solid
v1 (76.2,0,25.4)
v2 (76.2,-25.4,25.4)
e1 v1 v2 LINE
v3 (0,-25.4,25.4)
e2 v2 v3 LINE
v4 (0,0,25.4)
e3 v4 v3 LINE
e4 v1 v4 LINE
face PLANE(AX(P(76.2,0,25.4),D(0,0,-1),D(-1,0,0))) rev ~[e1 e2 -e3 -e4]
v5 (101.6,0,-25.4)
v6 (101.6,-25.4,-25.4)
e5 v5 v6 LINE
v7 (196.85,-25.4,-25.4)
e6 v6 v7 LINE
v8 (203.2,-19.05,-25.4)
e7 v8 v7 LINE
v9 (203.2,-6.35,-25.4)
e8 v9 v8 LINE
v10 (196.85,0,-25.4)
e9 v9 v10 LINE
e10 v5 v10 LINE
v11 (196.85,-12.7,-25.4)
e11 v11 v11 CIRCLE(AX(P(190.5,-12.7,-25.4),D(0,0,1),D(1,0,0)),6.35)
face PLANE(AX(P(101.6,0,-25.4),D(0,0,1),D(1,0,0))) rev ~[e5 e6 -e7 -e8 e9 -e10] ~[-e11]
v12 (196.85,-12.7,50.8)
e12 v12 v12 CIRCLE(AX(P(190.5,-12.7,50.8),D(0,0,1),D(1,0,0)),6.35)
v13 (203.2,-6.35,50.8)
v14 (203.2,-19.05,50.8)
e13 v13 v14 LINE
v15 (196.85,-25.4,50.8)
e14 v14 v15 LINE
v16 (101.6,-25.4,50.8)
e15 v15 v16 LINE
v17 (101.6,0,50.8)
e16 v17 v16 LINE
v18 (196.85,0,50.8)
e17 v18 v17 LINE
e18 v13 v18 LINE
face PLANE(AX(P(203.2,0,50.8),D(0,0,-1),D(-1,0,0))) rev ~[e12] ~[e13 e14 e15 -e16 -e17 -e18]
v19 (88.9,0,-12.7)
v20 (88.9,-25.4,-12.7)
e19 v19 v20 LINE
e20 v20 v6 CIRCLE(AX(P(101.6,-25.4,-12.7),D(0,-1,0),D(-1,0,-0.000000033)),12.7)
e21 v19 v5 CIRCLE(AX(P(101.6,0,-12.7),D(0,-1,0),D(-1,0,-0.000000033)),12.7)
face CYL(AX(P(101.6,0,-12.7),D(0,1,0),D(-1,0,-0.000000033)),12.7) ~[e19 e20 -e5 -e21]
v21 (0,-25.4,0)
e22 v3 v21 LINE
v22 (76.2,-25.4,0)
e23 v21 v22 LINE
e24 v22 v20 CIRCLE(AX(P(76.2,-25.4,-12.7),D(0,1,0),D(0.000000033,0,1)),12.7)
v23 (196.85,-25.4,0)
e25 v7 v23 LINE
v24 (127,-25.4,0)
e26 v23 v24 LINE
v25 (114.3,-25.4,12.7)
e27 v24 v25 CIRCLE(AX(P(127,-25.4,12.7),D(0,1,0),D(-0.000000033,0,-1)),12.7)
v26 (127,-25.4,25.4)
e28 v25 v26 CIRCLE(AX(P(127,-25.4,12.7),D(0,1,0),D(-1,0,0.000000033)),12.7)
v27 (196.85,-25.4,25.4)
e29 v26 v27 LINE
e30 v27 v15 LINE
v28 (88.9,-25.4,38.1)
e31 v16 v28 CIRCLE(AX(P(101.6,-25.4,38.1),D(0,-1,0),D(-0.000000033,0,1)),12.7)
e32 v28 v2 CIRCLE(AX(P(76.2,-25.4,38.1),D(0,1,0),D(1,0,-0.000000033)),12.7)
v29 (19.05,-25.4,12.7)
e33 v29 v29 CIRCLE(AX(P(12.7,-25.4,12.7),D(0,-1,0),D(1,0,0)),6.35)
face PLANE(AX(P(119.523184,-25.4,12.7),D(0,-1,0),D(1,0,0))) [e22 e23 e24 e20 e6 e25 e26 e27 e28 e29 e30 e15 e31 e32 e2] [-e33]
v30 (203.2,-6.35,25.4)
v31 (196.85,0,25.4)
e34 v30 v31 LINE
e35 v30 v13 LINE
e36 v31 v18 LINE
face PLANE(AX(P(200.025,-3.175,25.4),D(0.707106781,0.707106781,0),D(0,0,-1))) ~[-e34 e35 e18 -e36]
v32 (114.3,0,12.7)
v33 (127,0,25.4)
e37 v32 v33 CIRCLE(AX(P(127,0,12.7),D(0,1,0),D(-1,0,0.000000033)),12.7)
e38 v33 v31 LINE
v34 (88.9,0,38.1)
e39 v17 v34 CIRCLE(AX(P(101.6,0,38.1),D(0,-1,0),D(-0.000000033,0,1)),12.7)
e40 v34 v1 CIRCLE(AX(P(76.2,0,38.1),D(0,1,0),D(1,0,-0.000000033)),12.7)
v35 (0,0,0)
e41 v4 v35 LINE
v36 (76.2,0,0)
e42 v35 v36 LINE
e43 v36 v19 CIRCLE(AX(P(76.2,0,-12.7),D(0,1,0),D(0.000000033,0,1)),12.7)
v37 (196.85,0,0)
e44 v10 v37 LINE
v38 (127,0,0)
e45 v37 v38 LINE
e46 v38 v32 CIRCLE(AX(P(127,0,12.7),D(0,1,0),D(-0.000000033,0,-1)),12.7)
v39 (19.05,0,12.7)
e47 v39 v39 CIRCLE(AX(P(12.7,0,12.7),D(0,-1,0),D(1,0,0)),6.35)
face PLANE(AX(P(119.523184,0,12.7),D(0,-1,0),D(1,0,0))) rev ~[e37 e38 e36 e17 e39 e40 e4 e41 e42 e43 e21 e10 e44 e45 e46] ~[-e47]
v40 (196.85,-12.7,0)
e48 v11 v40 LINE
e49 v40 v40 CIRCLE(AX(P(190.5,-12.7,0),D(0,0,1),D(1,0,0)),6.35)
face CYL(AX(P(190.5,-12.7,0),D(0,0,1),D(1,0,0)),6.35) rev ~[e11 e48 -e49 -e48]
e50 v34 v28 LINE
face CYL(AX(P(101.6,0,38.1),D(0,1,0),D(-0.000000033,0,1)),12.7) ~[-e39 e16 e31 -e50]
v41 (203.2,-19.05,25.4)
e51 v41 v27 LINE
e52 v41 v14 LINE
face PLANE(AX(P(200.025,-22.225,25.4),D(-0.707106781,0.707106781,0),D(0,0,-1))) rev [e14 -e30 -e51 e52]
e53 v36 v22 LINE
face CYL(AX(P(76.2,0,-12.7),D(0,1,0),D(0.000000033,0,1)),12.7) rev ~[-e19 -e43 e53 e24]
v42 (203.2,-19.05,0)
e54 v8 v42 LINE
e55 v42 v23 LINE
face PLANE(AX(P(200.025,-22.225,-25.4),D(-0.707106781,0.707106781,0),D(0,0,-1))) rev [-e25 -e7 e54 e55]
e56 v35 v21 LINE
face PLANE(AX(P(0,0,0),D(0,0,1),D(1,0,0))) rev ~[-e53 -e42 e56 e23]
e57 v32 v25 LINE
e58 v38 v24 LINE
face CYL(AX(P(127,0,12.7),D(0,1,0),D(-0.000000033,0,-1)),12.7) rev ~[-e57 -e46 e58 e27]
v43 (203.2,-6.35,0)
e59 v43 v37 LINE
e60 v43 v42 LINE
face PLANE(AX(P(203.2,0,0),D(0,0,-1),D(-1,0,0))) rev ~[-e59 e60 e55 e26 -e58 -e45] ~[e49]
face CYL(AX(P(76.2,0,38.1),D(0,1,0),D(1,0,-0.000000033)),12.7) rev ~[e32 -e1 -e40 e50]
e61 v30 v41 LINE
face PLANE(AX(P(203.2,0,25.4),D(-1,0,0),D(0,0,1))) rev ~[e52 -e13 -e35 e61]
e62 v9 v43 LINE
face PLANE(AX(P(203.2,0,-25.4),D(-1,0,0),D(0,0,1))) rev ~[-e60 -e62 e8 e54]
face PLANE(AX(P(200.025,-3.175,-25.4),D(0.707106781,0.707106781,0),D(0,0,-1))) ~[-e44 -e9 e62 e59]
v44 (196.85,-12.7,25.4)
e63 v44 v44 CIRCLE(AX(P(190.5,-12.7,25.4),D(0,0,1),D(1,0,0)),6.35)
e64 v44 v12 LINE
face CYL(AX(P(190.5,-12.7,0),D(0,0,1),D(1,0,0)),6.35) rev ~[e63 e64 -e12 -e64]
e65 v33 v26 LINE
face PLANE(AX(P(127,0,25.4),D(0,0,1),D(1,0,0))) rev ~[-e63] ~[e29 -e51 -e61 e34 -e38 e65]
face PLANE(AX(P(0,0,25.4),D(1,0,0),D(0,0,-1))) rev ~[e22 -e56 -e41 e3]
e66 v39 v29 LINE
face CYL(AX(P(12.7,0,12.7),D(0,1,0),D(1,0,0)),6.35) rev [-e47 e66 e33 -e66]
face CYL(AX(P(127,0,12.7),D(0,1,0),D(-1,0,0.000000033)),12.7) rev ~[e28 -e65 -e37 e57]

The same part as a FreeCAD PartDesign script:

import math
import FreeCAD as App
import Part
import Sketcher
from FreeCAD import Vector
Q = App.Units.Quantity


def edges_at(feature, points):
    """Names of the edges that pass closest to the given points."""
    edges = feature.Shape.Edges
    near = lambda p: min(range(len(edges)), key=lambda i: edges[i].distToShape(Part.Vertex(*p))[0])
    return sorted({f"Edge{near(p) + 1}" for p in points})

doc = App.newDocument("Part")
body = doc.addObject("PartDesign::Body", "Body")

# Sketch on XZ plane
sketch1 = doc.addObject("Sketcher::SketchObject", "Sketch")
body.addObject(sketch1)
sketch1.AttachmentSupport = (doc.XZ_Plane, [""])
sketch1.MapMode = "FlatFace"
sketch1.addGeometry(Part.LineSegment(Vector(0, 25, 0), Vector(0, 0, 0)), False)
sketch1.addGeometry(Part.LineSegment(Vector(0, 0, 0), Vector(76, 0, 0)), False)
sketch1.addGeometry(Part.ArcOfCircle(Part.Circle(Vector(76, -13, 0), Vector(0, 0, 1), 13), math.radians(0), math.radians(90)), False)
sketch1.addGeometry(Part.ArcOfCircle(Part.Circle(Vector(102, -13, 0), Vector(0, 0, 1), 13), math.radians(-180), math.radians(-90)), False)
sketch1.addGeometry(Part.LineSegment(Vector(102, -25, 0), Vector(203, -25, 0)), False)
sketch1.addGeometry(Part.LineSegment(Vector(203, -25, 0), Vector(203, 0, 0)), False)
sketch1.addGeometry(Part.LineSegment(Vector(203, 0, 0), Vector(127, 0, 0)), False)
sketch1.addGeometry(Part.ArcOfCircle(Part.Circle(Vector(127, 13, 0), Vector(0, 0, 1), 13), math.radians(-180), math.radians(-90)), False)
sketch1.addGeometry(Part.ArcOfCircle(Part.Circle(Vector(127, 13, 0), Vector(0, 0, 1), 13), math.radians(90), math.radians(180)), False)
sketch1.addGeometry(Part.LineSegment(Vector(127, 25, 0), Vector(203, 25, 0)), False)
sketch1.addGeometry(Part.LineSegment(Vector(203, 25, 0), Vector(203, 51, 0)), False)
sketch1.addGeometry(Part.LineSegment(Vector(203, 51, 0), Vector(102, 51, 0)), False)
sketch1.addGeometry(Part.ArcOfCircle(Part.Circle(Vector(102, 38, 0), Vector(0, 0, 1), 13), math.radians(90), math.radians(180)), False)
sketch1.addGeometry(Part.ArcOfCircle(Part.Circle(Vector(76, 38, 0), Vector(0, 0, 1), 13), math.radians(-90), math.radians(0)), False)
sketch1.addGeometry(Part.LineSegment(Vector(76, 25, 0), Vector(0, 25, 0)), False)
sketch1.addGeometry(Part.Circle(Vector(13, 13, 0), Vector(0, 0, 1), 6), False)
sketch1.addConstraint(Sketcher.Constraint("Coincident", 0, 2, 1, 1))
sketch1.addConstraint(Sketcher.Constraint("Tangent", 1, 2, 2, 2))
sketch1.addConstraint(Sketcher.Constraint("Tangent", 2, 1, 3, 1))
sketch1.addConstraint(Sketcher.Constraint("Tangent", 3, 2, 4, 1))
sketch1.addConstraint(Sketcher.Constraint("Coincident", 4, 2, 5, 1))
sketch1.addConstraint(Sketcher.Constraint("Coincident", 5, 2, 6, 1))
sketch1.addConstraint(Sketcher.Constraint("Tangent", 6, 2, 7, 2))
sketch1.addConstraint(Sketcher.Constraint("Tangent", 7, 1, 8, 2))
sketch1.addConstraint(Sketcher.Constraint("Tangent", 8, 1, 9, 1))
sketch1.addConstraint(Sketcher.Constraint("Coincident", 9, 2, 10, 1))
sketch1.addConstraint(Sketcher.Constraint("Coincident", 10, 2, 11, 1))
sketch1.addConstraint(Sketcher.Constraint("Tangent", 11, 2, 12, 1))
sketch1.addConstraint(Sketcher.Constraint("Tangent", 12, 2, 13, 2))
sketch1.addConstraint(Sketcher.Constraint("Tangent", 13, 1, 14, 1))
sketch1.addConstraint(Sketcher.Constraint("Coincident", 14, 2, 0, 1))
sketch1.addConstraint(Sketcher.Constraint("Vertical", 0))
sketch1.addConstraint(Sketcher.Constraint("Horizontal", 1))
sketch1.addConstraint(Sketcher.Constraint("Horizontal", 4))
sketch1.addConstraint(Sketcher.Constraint("Vertical", 5))
sketch1.addConstraint(Sketcher.Constraint("Horizontal", 6))
sketch1.addConstraint(Sketcher.Constraint("Horizontal", 9))
sketch1.addConstraint(Sketcher.Constraint("Vertical", 10))
sketch1.addConstraint(Sketcher.Constraint("Horizontal", 11))
sketch1.addConstraint(Sketcher.Constraint("Horizontal", 14))
sketch1.addConstraint(Sketcher.Constraint("Coincident", 0, 2, -1, 1))
sketch1.addConstraint(Sketcher.Constraint("Equal", 2, 3))
sketch1.addConstraint(Sketcher.Constraint("Equal", 3, 7))
sketch1.addConstraint(Sketcher.Constraint("Equal", 7, 8))
sketch1.addConstraint(Sketcher.Constraint("Equal", 8, 12))
sketch1.addConstraint(Sketcher.Constraint("Equal", 12, 13))
sketch1.addConstraint(Sketcher.Constraint("Symmetric", 4, 2, 9, 2, -1))
sketch1.addConstraint(Sketcher.Constraint("PointOnObject", 5, 2, -1))
sketch1.addConstraint(Sketcher.Constraint("Horizontal", 12, 3, 13, 3))
sketch1.addConstraint(Sketcher.Constraint("Horizontal", 8, 3, 15, 3))
sketch1.addConstraint(Sketcher.Constraint("Horizontal", 15, 3, 7, 1))
sketch1.addConstraint(Sketcher.Constraint("Horizontal", 9, 2, 13, 1))
sketch1.addConstraint(Sketcher.Constraint("Vertical", 3, 3, 12, 3))
sketch1.addConstraint(Sketcher.Constraint("Equal", 1, 6))
sketch1.addConstraint(Sketcher.Constraint("Diameter", 15, Q("0.5 in")))
sketch1.addConstraint(Sketcher.Constraint("Radius", 2, Q("0.5 in")))
sketch1.addConstraint(Sketcher.Constraint("DistanceX", 1, 1, 1, 2, Q("3 in")))
sketch1.addConstraint(Sketcher.Constraint("DistanceX", 4, 1, 4, 2, Q("4 in")))
sketch1.addConstraint(Sketcher.Constraint("DistanceX", -1, 1, 15, 3, Q("0.5 in")))
pad1 = doc.addObject("PartDesign::Pad", "Pad")
body.addObject(pad1)
pad1.Profile = sketch1
pad1.Length = Q("1 in")
doc.recompute()

chamfer = doc.addObject("PartDesign::Chamfer", "Chamfer")
body.addObject(chamfer)
chamfer.Base = (pad1, edges_at(pad1, [
    (203.2, -25.4, 38.1),
    (203.2, -25.4, -12.7),
    (203.2, 0, -12.7),
    (203.2, 0, 38.1),
]))
chamfer.ChamferType = "Two distances"
chamfer.Size = Q("0.25 in")
chamfer.Size2 = Q("0.25 in")

# Sketch on XY plane
sketch2 = doc.addObject("Sketcher::SketchObject", "Sketch001")
body.addObject(sketch2)
sketch2.AttachmentSupport = (doc.XY_Plane, [""])
sketch2.MapMode = "FlatFace"
sketch2.addGeometry(Part.Circle(Vector(190, -13, 0), Vector(0, 0, 1), 6), False)
sketch2.addConstraint(Sketcher.Constraint("Diameter", 0, Q("0.5 in")))
sketch2.addConstraint(Sketcher.Constraint("DistanceX", -1, 1, 0, 3, Q("7.5 in")))
sketch2.addConstraint(Sketcher.Constraint("DistanceY", 0, 3, -1, 1, Q("0.5 in")))
pocket1 = doc.addObject("PartDesign::Pocket", "Pocket")
body.addObject(pocket1)
pocket1.Profile = sketch2
pocket1.Length = Q("10 in")
pocket1.Midplane = True

doc.recompute()
